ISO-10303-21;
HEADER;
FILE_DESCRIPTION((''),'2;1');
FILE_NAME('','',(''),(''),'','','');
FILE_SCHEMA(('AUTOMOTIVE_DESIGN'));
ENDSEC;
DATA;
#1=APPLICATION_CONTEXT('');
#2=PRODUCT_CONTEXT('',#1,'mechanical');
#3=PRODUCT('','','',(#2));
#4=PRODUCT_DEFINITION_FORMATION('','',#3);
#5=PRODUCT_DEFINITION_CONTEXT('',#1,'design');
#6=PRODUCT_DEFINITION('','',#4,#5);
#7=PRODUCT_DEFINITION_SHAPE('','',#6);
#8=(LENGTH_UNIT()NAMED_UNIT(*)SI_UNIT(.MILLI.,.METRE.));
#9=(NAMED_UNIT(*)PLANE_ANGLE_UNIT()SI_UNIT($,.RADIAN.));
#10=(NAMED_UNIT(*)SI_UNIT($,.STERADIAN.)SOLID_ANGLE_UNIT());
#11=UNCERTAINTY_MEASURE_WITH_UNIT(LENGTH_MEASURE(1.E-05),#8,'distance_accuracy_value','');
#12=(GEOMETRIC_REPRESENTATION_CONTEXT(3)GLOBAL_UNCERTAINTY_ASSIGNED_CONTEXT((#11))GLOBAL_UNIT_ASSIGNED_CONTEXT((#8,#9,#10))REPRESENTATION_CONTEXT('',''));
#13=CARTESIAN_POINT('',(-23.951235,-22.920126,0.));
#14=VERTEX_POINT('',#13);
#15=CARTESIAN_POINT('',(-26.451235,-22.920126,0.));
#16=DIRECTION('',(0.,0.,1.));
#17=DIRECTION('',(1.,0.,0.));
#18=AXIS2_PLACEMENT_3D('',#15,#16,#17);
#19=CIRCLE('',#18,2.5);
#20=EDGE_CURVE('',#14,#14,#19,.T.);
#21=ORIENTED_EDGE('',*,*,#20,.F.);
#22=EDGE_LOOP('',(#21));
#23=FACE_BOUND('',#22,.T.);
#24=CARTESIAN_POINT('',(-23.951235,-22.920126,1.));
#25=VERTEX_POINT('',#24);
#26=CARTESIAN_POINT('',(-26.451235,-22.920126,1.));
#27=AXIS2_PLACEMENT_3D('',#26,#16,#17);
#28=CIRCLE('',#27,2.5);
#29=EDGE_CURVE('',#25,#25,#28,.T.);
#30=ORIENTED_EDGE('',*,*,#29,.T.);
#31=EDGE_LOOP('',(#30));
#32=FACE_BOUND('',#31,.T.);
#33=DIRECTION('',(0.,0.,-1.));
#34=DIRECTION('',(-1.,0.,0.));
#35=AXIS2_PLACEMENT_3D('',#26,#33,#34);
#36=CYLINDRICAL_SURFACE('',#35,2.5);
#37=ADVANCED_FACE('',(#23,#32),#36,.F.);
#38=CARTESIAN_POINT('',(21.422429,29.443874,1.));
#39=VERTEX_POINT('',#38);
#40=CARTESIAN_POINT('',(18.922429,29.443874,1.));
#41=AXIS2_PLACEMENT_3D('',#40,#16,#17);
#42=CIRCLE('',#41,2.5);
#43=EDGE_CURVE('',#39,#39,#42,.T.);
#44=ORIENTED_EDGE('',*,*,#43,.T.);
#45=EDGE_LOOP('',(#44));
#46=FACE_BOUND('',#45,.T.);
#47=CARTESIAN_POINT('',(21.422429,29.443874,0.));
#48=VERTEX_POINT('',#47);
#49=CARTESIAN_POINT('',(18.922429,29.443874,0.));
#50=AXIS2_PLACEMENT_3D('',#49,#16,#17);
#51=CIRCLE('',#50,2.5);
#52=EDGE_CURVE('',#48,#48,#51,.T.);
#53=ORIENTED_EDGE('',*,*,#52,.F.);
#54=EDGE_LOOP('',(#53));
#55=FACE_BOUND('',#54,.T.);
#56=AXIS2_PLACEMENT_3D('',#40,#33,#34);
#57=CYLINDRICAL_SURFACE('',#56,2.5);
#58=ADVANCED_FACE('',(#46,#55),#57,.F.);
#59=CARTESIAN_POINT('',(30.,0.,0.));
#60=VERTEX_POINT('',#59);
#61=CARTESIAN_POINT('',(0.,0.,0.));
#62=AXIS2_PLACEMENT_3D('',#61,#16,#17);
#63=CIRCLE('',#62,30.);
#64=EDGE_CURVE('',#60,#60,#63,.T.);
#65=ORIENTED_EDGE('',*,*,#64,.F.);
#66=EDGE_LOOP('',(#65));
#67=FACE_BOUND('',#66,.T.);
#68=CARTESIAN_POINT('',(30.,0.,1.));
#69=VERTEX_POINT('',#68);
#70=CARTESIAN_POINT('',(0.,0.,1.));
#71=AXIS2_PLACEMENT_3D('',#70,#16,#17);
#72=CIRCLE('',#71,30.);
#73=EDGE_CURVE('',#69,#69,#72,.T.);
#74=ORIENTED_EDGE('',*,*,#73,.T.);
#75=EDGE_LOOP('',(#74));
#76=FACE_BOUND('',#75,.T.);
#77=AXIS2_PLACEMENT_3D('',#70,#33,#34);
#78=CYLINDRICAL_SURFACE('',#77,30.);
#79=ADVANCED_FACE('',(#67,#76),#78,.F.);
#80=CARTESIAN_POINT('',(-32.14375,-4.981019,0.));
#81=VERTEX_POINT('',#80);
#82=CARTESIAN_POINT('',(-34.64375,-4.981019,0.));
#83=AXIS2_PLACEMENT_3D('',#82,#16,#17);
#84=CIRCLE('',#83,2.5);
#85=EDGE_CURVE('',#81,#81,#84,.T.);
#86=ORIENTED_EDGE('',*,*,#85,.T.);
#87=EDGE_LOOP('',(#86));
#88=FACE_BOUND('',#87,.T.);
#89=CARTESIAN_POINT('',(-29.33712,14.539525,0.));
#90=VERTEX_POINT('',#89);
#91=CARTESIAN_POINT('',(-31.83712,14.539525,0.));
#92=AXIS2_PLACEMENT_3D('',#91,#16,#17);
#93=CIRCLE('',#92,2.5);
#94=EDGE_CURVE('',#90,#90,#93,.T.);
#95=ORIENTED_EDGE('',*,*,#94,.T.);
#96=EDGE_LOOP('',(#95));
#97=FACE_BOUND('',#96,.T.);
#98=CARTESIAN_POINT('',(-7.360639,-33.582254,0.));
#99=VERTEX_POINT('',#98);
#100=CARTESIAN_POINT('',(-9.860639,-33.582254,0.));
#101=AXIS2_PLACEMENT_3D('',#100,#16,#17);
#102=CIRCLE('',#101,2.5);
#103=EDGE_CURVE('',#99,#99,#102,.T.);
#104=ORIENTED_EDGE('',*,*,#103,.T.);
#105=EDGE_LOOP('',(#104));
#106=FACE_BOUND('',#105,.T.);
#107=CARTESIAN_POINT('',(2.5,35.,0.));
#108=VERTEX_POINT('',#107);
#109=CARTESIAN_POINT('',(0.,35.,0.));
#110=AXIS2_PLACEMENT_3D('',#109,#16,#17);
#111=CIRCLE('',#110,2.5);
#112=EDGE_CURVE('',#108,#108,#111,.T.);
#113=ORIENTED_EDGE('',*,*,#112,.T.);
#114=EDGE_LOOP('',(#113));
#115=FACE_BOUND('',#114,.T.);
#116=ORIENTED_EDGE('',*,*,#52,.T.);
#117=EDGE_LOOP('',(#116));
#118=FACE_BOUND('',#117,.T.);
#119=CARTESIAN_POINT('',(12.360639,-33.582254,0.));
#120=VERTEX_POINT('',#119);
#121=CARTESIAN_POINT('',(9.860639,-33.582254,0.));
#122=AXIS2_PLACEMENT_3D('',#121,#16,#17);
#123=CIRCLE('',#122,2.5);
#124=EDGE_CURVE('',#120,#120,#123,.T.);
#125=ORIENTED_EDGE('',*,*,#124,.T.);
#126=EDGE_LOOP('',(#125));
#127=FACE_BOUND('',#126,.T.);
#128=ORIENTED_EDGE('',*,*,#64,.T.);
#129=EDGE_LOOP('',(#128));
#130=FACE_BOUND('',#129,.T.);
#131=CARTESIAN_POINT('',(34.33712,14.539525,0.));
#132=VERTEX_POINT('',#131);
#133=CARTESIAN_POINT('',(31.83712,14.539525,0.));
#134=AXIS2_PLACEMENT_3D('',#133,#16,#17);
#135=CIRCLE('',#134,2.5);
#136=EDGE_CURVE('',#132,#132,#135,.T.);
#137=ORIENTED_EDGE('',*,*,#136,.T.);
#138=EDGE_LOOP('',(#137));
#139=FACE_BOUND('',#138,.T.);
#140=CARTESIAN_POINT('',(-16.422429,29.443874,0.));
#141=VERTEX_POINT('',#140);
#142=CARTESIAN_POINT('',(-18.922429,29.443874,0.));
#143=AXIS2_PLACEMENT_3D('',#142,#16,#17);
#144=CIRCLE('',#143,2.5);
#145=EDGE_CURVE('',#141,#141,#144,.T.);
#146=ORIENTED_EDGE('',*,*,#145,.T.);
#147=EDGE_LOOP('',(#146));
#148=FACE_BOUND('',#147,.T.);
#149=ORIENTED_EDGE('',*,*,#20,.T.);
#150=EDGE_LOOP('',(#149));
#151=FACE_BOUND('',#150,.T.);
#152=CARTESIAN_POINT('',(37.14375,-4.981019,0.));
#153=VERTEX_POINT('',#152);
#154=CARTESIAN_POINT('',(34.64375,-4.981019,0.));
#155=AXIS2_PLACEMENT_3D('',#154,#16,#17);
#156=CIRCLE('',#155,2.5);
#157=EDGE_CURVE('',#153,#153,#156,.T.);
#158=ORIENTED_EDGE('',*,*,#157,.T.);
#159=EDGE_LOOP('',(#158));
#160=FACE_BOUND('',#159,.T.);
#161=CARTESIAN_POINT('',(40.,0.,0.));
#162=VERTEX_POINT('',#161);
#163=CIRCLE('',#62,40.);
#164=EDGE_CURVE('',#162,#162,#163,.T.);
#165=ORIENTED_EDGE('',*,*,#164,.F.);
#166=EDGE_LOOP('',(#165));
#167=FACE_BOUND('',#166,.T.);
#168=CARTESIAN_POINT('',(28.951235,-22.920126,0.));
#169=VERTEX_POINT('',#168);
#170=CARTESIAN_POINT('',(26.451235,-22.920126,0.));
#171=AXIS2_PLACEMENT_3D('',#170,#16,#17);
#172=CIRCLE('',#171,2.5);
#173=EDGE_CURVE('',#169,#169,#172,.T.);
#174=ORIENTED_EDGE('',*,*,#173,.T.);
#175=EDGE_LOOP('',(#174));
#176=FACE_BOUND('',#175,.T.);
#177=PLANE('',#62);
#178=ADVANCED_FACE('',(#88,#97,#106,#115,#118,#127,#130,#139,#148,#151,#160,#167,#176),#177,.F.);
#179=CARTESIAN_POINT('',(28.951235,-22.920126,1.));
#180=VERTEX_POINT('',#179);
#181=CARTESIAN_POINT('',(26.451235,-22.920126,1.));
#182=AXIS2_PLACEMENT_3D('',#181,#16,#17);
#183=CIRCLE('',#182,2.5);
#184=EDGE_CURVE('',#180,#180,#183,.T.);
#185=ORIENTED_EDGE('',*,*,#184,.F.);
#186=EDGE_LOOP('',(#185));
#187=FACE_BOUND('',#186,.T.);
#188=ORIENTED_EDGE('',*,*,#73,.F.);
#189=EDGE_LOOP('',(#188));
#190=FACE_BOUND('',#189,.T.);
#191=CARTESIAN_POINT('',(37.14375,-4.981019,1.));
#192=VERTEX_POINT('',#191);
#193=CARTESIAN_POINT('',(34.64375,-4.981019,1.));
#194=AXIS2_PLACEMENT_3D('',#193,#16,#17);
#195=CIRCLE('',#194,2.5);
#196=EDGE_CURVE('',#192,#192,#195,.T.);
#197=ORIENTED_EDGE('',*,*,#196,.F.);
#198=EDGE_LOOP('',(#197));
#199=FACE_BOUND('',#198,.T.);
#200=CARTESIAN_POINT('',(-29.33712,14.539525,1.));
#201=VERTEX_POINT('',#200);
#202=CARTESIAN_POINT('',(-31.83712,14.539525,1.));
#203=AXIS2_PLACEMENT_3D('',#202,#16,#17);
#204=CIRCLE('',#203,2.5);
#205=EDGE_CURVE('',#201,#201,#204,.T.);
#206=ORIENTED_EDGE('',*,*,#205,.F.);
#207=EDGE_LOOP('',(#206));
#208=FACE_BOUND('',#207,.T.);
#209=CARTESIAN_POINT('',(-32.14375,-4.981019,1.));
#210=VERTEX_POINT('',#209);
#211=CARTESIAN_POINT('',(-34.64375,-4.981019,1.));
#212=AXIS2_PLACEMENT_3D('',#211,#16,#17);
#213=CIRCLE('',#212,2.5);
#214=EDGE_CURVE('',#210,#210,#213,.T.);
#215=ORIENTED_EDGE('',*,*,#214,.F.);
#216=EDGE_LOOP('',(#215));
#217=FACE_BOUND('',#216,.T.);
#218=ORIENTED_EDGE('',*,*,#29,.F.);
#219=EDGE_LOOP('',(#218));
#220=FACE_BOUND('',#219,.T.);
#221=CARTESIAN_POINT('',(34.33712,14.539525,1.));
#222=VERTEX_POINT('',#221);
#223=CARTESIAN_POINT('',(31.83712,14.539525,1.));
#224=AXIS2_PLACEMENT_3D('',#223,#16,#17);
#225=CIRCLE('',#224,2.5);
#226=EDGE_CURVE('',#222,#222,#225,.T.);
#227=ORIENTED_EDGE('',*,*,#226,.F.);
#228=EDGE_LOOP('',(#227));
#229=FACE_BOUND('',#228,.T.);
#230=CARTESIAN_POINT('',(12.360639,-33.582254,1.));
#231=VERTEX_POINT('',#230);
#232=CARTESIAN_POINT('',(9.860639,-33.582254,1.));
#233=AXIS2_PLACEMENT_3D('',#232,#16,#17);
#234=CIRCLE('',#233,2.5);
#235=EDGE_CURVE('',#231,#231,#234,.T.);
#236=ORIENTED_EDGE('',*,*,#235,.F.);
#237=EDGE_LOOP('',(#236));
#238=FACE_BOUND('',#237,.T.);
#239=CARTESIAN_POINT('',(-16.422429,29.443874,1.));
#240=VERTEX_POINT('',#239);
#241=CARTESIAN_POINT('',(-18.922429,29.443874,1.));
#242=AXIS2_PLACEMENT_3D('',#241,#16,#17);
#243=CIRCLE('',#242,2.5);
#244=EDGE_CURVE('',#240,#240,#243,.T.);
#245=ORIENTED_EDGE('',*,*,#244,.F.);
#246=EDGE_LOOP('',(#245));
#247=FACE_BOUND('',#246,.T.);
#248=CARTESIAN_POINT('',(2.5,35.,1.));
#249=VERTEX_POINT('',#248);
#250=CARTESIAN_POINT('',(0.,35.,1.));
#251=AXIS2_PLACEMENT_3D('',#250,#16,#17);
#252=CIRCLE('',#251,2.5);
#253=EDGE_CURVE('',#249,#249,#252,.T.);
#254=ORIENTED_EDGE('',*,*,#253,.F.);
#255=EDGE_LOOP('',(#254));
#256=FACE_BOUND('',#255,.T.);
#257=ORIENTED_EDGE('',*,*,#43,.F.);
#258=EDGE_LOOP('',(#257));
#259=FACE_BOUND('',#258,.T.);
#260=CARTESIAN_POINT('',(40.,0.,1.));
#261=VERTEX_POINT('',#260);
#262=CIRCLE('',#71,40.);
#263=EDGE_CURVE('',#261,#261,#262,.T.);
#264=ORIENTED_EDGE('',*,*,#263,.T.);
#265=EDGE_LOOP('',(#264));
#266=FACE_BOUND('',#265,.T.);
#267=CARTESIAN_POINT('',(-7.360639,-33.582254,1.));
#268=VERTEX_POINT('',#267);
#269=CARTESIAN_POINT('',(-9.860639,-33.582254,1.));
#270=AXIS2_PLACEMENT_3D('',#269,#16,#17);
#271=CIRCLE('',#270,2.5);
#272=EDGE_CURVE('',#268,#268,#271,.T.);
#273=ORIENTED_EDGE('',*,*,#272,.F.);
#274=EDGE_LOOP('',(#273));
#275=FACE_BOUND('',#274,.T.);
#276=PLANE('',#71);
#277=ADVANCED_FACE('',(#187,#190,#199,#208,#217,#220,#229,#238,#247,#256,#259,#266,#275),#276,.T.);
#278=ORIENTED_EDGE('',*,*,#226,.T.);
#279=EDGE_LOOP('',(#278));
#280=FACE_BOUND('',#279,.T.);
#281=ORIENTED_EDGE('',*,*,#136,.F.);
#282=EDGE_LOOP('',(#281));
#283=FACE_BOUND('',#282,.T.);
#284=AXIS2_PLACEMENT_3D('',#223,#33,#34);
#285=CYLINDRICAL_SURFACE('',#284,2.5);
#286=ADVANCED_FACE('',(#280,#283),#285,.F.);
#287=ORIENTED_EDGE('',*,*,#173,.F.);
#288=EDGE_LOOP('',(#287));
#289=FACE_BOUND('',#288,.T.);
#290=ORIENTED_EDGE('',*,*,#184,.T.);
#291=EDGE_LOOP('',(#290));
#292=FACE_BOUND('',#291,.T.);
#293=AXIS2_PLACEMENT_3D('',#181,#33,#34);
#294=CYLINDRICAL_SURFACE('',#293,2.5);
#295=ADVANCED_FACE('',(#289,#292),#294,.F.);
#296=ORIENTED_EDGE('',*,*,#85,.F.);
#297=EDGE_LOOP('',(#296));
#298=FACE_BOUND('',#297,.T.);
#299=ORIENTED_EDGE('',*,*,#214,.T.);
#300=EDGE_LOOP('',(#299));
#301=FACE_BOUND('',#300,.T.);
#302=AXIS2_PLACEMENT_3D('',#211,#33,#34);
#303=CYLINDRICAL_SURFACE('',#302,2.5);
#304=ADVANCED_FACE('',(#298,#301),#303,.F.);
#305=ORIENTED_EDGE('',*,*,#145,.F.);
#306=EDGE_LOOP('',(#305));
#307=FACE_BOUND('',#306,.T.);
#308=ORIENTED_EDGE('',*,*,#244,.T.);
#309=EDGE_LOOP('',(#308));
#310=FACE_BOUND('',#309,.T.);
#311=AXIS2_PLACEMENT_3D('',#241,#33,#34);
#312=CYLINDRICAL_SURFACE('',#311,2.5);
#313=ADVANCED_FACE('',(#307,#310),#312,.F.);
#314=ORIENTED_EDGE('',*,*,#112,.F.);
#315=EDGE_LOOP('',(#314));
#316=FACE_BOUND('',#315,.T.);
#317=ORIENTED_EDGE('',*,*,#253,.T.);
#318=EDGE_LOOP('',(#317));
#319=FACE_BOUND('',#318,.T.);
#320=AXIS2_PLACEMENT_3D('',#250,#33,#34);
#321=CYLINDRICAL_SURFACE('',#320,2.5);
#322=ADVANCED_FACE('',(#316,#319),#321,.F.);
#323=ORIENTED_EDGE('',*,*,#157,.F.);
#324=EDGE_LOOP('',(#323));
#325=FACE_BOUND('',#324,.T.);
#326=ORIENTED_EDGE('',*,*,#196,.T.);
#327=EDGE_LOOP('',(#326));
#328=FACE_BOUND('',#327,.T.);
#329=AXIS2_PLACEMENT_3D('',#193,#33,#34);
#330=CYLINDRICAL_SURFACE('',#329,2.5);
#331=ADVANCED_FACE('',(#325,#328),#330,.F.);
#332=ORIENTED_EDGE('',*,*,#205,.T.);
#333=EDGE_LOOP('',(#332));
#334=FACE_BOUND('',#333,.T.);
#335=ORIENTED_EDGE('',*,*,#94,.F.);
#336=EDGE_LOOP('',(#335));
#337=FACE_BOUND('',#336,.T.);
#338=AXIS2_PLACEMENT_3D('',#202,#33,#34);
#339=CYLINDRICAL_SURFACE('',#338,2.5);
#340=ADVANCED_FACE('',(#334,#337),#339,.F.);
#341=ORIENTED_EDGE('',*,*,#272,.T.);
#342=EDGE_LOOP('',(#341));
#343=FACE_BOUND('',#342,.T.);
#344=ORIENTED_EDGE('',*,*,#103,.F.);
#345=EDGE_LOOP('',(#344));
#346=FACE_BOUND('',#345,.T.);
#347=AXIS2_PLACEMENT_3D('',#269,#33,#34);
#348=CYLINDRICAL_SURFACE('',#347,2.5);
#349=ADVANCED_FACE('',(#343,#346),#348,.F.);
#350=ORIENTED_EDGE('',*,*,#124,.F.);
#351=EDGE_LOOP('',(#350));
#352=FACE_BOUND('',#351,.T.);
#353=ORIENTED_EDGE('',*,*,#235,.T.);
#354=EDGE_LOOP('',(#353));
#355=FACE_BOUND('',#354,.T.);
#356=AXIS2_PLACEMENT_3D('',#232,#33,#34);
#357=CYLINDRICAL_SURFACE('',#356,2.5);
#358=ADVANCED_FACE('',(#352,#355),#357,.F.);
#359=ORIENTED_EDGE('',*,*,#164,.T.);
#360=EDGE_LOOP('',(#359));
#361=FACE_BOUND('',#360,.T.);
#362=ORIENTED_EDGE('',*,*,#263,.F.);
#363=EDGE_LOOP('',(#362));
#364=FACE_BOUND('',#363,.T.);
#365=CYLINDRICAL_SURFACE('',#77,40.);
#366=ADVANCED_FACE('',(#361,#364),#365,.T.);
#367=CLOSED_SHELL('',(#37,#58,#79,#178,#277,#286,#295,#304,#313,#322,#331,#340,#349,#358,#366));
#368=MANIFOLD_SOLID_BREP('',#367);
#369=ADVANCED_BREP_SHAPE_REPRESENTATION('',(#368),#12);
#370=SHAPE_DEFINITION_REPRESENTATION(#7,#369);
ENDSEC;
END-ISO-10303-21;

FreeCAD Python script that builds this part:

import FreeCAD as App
import Part
import Sketcher
from FreeCAD import Vector

doc = App.newDocument("Part")
params = doc.addObject("Spreadsheet::Sheet", "Params")
for row, (alias, value) in enumerate([
    ("sketch1_diameter", "80 mm"),
    ("sketch1_diameter2", "5 mm"),
    ("sketch1_diameter3", "60 mm"),
    ("pad1_length", "1 mm"),
], start=1):
    params.set(f"A{row}", alias)
    params.set(f"B{row}", "=" + value)
    params.setAlias(f"B{row}", alias)

body = doc.addObject("PartDesign::Body", "Body")

sketch1 = body.newObject("Sketcher::SketchObject", "Sketch")
sketch1.AttachmentSupport = (doc.getObject("XY_Plane"), [""])
sketch1.MapMode = "FlatFace"
sketch1.addGeometry([
    Part.Circle(Vector(0, 0, 0), Vector(0, 0, 1), 40),
    Part.Circle(Vector(-26.5, -22.9, 0), Vector(0, 0, 1), 2.5),
    Part.Circle(Vector(-9.9, -33.6, 0), Vector(0, 0, 1), 2.5),
    Part.Circle(Vector(-34.6, -5, 0), Vector(0, 0, 1), 2.5),
    Part.Circle(Vector(9.9, -33.6, 0), Vector(0, 0, 1), 2.5),
    Part.Circle(Vector(26.5, -22.9, 0), Vector(0, 0, 1), 2.5),
    Part.Circle(Vector(0, 0, 0), Vector(0, 0, 1), 30),
    Part.Circle(Vector(34.6, -5, 0), Vector(0, 0, 1), 2.5),
    Part.Circle(Vector(-31.8, 14.5, 0), Vector(0, 0, 1), 2.5),
    Part.Circle(Vector(-18.9, 29.4, 0), Vector(0, 0, 1), 2.5),
    Part.Circle(Vector(31.8, 14.5, 0), Vector(0, 0, 1), 2.5),
    Part.Circle(Vector(0, 35, 0), Vector(0, 0, 1), 2.5),
    Part.Circle(Vector(18.9, 29.4, 0), Vector(0, 0, 1), 2.5),
], False)
sketch1.addConstraint([
    Sketcher.Constraint("Coincident", 0, 3, -1, 1),
    Sketcher.Constraint("Coincident", 6, 3, -1, 1),
    Sketcher.Constraint("Equal", 1, 2),
    Sketcher.Constraint("Equal", 2, 3),
    Sketcher.Constraint("Equal", 3, 4),
    Sketcher.Constraint("Equal", 4, 5),
    Sketcher.Constraint("Equal", 5, 7),
    Sketcher.Constraint("Equal", 7, 8),
    Sketcher.Constraint("Equal", 8, 9),
    Sketcher.Constraint("Equal", 9, 10),
    Sketcher.Constraint("Equal", 10, 11),
    Sketcher.Constraint("Equal", 11, 12),
    Sketcher.Constraint("Symmetric", 2, 3, 4, 3, -2),
    Sketcher.Constraint("Symmetric", 1, 3, 5, 3, -2),
    Sketcher.Constraint("Symmetric", 3, 3, 7, 3, -2),
    Sketcher.Constraint("Symmetric", 8, 3, 10, 3, -2),
    Sketcher.Constraint("Symmetric", 9, 3, 12, 3, -2),
    Sketcher.Constraint("PointOnObject", 11, 3, -2),
    Sketcher.Constraint("Diameter", 0, 80.0),
    Sketcher.Constraint("Diameter", 1, 5.0),
    Sketcher.Constraint("Diameter", 6, 60.0),
    Sketcher.Constraint("DistanceY", -1, 1, 11, 3, 35.0),
    Sketcher.Constraint("DistanceY", 1, 3, 9, 3, 52.363999),
    Sketcher.Constraint("DistanceX", 2, 3, -1, 1, 9.860639),
    Sketcher.Constraint("DistanceX", 3, 3, -1, 1, 34.64375),
    Sketcher.Constraint("DistanceY", 3, 3, -1, 1, 4.981019),
    Sketcher.Constraint("DistanceX", 8, 3, -1, 1, 31.83712),
    Sketcher.Constraint("DistanceX", 9, 3, -1, 1, 18.922429),
    Sketcher.Constraint("DistanceY", 2, 3, 1, 3, 10.662128),
    Sketcher.Constraint("DistanceX", 1, 3, 5, 3, 52.90247),
    Sketcher.Constraint("DistanceY", 1, 3, 8, 3, 37.459651),
    Sketcher.Constraint("DistanceY", 1, 3, -1, 1, 22.920126),
])
sketch1.setExpression("Constraints[18]", "Params.sketch1_diameter")
sketch1.setExpression("Constraints[19]", "Params.sketch1_diameter2")
sketch1.setExpression("Constraints[20]", "Params.sketch1_diameter3")
pad1 = body.newObject("PartDesign::Pad", "Pad")
pad1.Profile = sketch1
pad1.setExpression("Length", "Params.pad1_length")

doc.recompute()
